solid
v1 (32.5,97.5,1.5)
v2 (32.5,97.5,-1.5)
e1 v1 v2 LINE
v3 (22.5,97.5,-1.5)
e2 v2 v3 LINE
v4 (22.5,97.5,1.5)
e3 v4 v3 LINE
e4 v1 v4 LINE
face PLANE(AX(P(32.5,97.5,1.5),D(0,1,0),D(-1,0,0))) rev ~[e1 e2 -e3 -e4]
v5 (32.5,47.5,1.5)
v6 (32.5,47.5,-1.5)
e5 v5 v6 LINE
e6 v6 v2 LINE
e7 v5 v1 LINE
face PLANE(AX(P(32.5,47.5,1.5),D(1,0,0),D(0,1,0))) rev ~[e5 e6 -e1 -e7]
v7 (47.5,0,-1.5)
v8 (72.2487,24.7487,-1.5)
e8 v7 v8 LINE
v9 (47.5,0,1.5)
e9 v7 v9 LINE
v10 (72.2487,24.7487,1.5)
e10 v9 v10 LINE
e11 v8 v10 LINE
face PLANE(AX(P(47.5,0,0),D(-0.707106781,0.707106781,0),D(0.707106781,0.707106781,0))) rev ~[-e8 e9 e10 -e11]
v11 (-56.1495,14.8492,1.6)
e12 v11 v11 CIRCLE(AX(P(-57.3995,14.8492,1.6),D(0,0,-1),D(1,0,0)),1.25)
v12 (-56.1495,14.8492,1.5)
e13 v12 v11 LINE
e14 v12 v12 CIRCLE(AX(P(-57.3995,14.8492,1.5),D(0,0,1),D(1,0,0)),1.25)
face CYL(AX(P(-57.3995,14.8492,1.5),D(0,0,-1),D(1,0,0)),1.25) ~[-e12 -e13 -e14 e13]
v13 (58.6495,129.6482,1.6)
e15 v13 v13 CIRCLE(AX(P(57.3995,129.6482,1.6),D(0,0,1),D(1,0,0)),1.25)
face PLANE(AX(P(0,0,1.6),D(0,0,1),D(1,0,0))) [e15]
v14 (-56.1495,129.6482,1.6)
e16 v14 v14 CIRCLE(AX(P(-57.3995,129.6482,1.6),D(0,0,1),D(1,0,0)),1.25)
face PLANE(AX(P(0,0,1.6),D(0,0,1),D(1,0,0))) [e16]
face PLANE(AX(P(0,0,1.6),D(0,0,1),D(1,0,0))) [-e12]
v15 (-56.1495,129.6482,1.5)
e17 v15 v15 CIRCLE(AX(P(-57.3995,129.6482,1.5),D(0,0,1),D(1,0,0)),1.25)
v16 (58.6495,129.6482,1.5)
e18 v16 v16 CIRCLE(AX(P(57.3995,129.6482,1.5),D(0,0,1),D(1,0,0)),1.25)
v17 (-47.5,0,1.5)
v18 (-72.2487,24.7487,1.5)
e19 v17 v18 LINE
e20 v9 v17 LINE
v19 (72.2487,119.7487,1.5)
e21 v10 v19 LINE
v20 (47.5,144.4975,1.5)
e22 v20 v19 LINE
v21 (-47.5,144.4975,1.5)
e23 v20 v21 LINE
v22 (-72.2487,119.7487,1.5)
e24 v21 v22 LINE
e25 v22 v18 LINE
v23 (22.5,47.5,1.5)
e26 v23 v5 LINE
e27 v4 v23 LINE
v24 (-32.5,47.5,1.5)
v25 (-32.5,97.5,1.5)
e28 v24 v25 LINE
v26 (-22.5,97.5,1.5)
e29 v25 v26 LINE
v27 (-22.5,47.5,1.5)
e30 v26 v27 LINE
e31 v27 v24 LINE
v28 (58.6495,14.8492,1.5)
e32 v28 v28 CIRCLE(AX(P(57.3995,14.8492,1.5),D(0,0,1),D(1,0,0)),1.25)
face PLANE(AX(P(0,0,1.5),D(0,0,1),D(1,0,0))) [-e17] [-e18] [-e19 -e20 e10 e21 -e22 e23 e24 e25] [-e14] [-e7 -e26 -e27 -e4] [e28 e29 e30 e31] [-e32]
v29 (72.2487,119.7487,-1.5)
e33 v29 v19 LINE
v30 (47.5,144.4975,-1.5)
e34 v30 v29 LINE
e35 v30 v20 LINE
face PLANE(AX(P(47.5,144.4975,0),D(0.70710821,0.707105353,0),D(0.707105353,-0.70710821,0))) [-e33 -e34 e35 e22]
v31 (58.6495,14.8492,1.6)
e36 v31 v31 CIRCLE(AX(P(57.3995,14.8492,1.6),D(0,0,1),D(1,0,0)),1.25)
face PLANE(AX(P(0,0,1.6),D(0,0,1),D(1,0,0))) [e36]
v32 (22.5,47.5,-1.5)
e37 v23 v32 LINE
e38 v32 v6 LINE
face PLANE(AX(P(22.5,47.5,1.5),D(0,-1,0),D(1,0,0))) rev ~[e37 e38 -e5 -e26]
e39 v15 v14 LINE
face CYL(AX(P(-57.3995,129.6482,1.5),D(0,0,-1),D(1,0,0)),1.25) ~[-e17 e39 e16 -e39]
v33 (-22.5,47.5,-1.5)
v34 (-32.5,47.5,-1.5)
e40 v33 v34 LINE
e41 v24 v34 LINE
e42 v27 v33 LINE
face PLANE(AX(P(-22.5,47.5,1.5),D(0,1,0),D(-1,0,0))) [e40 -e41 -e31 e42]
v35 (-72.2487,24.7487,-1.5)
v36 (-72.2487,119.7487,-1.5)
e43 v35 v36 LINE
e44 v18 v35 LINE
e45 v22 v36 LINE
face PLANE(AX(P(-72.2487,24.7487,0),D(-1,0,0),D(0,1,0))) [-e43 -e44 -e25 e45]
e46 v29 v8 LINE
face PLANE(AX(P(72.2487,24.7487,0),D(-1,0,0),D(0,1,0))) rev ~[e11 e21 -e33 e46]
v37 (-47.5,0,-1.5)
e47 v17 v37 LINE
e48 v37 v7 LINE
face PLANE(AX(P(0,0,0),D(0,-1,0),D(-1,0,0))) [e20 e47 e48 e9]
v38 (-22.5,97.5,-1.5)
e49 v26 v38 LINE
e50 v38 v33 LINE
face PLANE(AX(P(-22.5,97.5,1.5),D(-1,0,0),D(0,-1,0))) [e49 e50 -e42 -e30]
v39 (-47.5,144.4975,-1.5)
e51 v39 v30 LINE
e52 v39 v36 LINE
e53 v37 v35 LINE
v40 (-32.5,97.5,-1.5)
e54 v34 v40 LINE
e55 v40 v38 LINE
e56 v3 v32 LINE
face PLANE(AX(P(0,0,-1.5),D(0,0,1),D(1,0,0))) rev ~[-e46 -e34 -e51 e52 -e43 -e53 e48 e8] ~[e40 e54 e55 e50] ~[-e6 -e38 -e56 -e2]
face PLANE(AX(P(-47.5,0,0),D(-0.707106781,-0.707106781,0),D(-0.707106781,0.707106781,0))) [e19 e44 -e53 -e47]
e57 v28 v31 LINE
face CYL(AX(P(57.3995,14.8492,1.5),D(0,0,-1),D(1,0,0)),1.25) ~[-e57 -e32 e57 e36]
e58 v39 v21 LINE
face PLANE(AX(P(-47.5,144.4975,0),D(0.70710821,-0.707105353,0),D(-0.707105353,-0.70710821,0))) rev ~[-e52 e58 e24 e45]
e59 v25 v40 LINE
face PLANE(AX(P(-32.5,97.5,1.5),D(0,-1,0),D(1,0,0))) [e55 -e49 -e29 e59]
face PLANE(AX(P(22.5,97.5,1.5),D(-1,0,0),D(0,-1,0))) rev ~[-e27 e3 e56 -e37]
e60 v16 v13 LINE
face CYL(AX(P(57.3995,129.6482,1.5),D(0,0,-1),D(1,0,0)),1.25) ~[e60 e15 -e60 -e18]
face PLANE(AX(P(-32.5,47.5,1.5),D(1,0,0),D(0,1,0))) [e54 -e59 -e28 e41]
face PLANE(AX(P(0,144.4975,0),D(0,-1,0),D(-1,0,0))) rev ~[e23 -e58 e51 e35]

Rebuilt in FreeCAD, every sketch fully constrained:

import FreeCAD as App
import Part
import Sketcher
from FreeCAD import Vector
Q = App.Units.Quantity

doc = App.newDocument("Part")
body = doc.addObject("PartDesign::Body", "Body")

sketch1 = body.newObject("Sketcher::SketchObject", "Sketch")
sketch1.AttachmentSupport = (doc.getObject("XY_Plane"), [""])
sketch1.MapMode = "FlatFace"
sketch1.addGeometry([
    Part.LineSegment(Vector(-48, 0, 0), Vector(48, 0, 0)),
    Part.LineSegment(Vector(48, 0, 0), Vector(72, 25, 0)),
    Part.LineSegment(Vector(72, 25, 0), Vector(72, 120, 0)),
    Part.LineSegment(Vector(72, 120, 0), Vector(48, 144, 0)),
    Part.LineSegment(Vector(48, 144, 0), Vector(-48, 144, 0)),
    Part.LineSegment(Vector(-48, 144, 0), Vector(-72, 120, 0)),
    Part.LineSegment(Vector(-72, 120, 0), Vector(-72, 25, 0)),
    Part.LineSegment(Vector(-72, 25, 0), Vector(-48, 0, 0)),
], False)
sketch1.addConstraint([
    Sketcher.Constraint("Coincident", 0, 2, 1, 1),
    Sketcher.Constraint("Coincident", 1, 2, 2, 1),
    Sketcher.Constraint("Coincident", 2, 2, 3, 1),
    Sketcher.Constraint("Coincident", 3, 2, 4, 1),
    Sketcher.Constraint("Coincident", 4, 2, 5, 1),
    Sketcher.Constraint("Coincident", 5, 2, 6, 1),
    Sketcher.Constraint("Coincident", 6, 2, 7, 1),
    Sketcher.Constraint("Coincident", 7, 2, 0, 1),
    Sketcher.Constraint("Horizontal", 0),
    Sketcher.Constraint("Vertical", 2),
    Sketcher.Constraint("Horizontal", 4),
    Sketcher.Constraint("Vertical", 6),
    Sketcher.Constraint("Symmetric", 0, 2, 7, 2, -1, 1),
    Sketcher.Constraint("Symmetric", 2, 2, 5, 2, -2),
    Sketcher.Constraint("Perpendicular", 1, 3),
    Sketcher.Constraint("Perpendicular", 3, 5),
    Sketcher.Constraint("Perpendicular", 5, 7),
    Sketcher.Constraint("Horizontal", 1, 2, 6, 2),
    Sketcher.Constraint("Vertical", 0, 2, 3, 2),
    Sketcher.Constraint("Equal", 4, 2),
    Sketcher.Constraint("Distance", 1, Q("35 mm")),
    Sketcher.Constraint("DistanceX", -1, 1, 0, 2, Q("47.5 mm")),
])
pad1 = body.newObject("PartDesign::Pad", "Pad")
pad1.Profile = sketch1
pad1.Length = 3
pad1.Midplane = True

sketch2 = body.newObject("Sketcher::SketchObject", "Sketch001")
sketch2.AttachmentSupport = (doc.getObject("XY_Plane"), [""])
sketch2.MapMode = "FlatFace"
sketch2.AttachmentOffset = App.Placement(Vector(0, 0, 1.5), App.Rotation())
sketch2.addGeometry([
    Part.LineSegment(Vector(-22, 98, 0), Vector(-32, 98, 0)),
    Part.LineSegment(Vector(-32, 98, 0), Vector(-32, 48, 0)),
    Part.LineSegment(Vector(-32, 48, 0), Vector(-22, 48, 0)),
    Part.LineSegment(Vector(-22, 48, 0), Vector(-22, 98, 0)),
    Part.LineSegment(Vector(32, 48, 0), Vector(32, 98, 0)),
    Part.LineSegment(Vector(32, 98, 0), Vector(22, 98, 0)),
    Part.LineSegment(Vector(22, 98, 0), Vector(22, 48, 0)),
    Part.LineSegment(Vector(22, 48, 0), Vector(32, 48, 0)),
], False)
sketch2.addConstraint([
    Sketcher.Constraint("Coincident", 0, 2, 1, 1),
    Sketcher.Constraint("Coincident", 1, 2, 2, 1),
    Sketcher.Constraint("Coincident", 2, 2, 3, 1),
    Sketcher.Constraint("Coincident", 3, 2, 0, 1),
    Sketcher.Constraint("Coincident", 4, 2, 5, 1),
    Sketcher.Constraint("Coincident", 5, 2, 6, 1),
    Sketcher.Constraint("Coincident", 6, 2, 7, 1),
    Sketcher.Constraint("Coincident", 7, 2, 4, 1),
    Sketcher.Constraint("Horizontal", 0),
    Sketcher.Constraint("Vertical", 1),
    Sketcher.Constraint("Horizontal", 2),
    Sketcher.Constraint("Vertical", 3),
    Sketcher.Constraint("Vertical", 4),
    Sketcher.Constraint("Horizontal", 5),
    Sketcher.Constraint("Vertical", 6),
    Sketcher.Constraint("Horizontal", 7),
    Sketcher.Constraint("Symmetric", 0, 2, 4, 2, -2),
    Sketcher.Constraint("Symmetric", 2, 2, 6, 2, -2),
    Sketcher.Constraint("DistanceX", 0, 2, 0, 1, Q("10 mm")),
    Sketcher.Constraint("DistanceY", 1, 2, 1, 1, Q("50 mm")),
    Sketcher.Constraint("DistanceX", 3, 2, 5, 2, Q("45 mm")),
    Sketcher.Constraint("DistanceY", -1, 1, 1, 2, Q("47.5 mm")),
])
pocket1 = body.newObject("PartDesign::Pocket", "Pocket")
pocket1.Profile = sketch2
pocket1.Length = 3

sketch3 = body.newObject("Sketcher::SketchObject", "Sketch002")
sketch3.AttachmentSupport = (doc.getObject("XY_Plane"), [""])
sketch3.MapMode = "FlatFace"
sketch3.AttachmentOffset = App.Placement(Vector(0, 0, 1.5), App.Rotation())
sketch3.addGeometry([
    Part.Circle(Vector(-57.4, 14.8, 0), Vector(0, 0, 1), 1.2),
    Part.Circle(Vector(-57.4, 129.6, 0), Vector(0, 0, 1), 1.2),
    Part.Circle(Vector(57.4, 14.8, 0), Vector(0, 0, 1), 1.2),
    Part.Circle(Vector(57.4, 129.6, 0), Vector(0, 0, 1), 1.2),
], False)
sketch3.addConstraint([
    Sketcher.Constraint("Equal", 0, 1),
    Sketcher.Constraint("Equal", 1, 2),
    Sketcher.Constraint("Equal", 2, 3),
    Sketcher.Constraint("Symmetric", 0, 3, 2, 3, -2),
    Sketcher.Constraint("Symmetric", 1, 3, 3, 3, -2),
    Sketcher.Constraint("Vertical", 0, 3, 1, 3),
    Sketcher.Constraint("Diameter", 0, Q("2.5 mm")),
    Sketcher.Constraint("DistanceY", 0, 3, 1, 3, Q("114.799 mm")),
    Sketcher.Constraint("DistanceX", 0, 3, 2, 3, Q("114.799 mm")),
    Sketcher.Constraint("DistanceY", -1, 1, 0, 3, Q("14.8492 mm")),
])
pad2 = body.newObject("PartDesign::Pad", "Pad001")
pad2.Profile = sketch3
pad2.Length = 0.1

doc.recompute()
